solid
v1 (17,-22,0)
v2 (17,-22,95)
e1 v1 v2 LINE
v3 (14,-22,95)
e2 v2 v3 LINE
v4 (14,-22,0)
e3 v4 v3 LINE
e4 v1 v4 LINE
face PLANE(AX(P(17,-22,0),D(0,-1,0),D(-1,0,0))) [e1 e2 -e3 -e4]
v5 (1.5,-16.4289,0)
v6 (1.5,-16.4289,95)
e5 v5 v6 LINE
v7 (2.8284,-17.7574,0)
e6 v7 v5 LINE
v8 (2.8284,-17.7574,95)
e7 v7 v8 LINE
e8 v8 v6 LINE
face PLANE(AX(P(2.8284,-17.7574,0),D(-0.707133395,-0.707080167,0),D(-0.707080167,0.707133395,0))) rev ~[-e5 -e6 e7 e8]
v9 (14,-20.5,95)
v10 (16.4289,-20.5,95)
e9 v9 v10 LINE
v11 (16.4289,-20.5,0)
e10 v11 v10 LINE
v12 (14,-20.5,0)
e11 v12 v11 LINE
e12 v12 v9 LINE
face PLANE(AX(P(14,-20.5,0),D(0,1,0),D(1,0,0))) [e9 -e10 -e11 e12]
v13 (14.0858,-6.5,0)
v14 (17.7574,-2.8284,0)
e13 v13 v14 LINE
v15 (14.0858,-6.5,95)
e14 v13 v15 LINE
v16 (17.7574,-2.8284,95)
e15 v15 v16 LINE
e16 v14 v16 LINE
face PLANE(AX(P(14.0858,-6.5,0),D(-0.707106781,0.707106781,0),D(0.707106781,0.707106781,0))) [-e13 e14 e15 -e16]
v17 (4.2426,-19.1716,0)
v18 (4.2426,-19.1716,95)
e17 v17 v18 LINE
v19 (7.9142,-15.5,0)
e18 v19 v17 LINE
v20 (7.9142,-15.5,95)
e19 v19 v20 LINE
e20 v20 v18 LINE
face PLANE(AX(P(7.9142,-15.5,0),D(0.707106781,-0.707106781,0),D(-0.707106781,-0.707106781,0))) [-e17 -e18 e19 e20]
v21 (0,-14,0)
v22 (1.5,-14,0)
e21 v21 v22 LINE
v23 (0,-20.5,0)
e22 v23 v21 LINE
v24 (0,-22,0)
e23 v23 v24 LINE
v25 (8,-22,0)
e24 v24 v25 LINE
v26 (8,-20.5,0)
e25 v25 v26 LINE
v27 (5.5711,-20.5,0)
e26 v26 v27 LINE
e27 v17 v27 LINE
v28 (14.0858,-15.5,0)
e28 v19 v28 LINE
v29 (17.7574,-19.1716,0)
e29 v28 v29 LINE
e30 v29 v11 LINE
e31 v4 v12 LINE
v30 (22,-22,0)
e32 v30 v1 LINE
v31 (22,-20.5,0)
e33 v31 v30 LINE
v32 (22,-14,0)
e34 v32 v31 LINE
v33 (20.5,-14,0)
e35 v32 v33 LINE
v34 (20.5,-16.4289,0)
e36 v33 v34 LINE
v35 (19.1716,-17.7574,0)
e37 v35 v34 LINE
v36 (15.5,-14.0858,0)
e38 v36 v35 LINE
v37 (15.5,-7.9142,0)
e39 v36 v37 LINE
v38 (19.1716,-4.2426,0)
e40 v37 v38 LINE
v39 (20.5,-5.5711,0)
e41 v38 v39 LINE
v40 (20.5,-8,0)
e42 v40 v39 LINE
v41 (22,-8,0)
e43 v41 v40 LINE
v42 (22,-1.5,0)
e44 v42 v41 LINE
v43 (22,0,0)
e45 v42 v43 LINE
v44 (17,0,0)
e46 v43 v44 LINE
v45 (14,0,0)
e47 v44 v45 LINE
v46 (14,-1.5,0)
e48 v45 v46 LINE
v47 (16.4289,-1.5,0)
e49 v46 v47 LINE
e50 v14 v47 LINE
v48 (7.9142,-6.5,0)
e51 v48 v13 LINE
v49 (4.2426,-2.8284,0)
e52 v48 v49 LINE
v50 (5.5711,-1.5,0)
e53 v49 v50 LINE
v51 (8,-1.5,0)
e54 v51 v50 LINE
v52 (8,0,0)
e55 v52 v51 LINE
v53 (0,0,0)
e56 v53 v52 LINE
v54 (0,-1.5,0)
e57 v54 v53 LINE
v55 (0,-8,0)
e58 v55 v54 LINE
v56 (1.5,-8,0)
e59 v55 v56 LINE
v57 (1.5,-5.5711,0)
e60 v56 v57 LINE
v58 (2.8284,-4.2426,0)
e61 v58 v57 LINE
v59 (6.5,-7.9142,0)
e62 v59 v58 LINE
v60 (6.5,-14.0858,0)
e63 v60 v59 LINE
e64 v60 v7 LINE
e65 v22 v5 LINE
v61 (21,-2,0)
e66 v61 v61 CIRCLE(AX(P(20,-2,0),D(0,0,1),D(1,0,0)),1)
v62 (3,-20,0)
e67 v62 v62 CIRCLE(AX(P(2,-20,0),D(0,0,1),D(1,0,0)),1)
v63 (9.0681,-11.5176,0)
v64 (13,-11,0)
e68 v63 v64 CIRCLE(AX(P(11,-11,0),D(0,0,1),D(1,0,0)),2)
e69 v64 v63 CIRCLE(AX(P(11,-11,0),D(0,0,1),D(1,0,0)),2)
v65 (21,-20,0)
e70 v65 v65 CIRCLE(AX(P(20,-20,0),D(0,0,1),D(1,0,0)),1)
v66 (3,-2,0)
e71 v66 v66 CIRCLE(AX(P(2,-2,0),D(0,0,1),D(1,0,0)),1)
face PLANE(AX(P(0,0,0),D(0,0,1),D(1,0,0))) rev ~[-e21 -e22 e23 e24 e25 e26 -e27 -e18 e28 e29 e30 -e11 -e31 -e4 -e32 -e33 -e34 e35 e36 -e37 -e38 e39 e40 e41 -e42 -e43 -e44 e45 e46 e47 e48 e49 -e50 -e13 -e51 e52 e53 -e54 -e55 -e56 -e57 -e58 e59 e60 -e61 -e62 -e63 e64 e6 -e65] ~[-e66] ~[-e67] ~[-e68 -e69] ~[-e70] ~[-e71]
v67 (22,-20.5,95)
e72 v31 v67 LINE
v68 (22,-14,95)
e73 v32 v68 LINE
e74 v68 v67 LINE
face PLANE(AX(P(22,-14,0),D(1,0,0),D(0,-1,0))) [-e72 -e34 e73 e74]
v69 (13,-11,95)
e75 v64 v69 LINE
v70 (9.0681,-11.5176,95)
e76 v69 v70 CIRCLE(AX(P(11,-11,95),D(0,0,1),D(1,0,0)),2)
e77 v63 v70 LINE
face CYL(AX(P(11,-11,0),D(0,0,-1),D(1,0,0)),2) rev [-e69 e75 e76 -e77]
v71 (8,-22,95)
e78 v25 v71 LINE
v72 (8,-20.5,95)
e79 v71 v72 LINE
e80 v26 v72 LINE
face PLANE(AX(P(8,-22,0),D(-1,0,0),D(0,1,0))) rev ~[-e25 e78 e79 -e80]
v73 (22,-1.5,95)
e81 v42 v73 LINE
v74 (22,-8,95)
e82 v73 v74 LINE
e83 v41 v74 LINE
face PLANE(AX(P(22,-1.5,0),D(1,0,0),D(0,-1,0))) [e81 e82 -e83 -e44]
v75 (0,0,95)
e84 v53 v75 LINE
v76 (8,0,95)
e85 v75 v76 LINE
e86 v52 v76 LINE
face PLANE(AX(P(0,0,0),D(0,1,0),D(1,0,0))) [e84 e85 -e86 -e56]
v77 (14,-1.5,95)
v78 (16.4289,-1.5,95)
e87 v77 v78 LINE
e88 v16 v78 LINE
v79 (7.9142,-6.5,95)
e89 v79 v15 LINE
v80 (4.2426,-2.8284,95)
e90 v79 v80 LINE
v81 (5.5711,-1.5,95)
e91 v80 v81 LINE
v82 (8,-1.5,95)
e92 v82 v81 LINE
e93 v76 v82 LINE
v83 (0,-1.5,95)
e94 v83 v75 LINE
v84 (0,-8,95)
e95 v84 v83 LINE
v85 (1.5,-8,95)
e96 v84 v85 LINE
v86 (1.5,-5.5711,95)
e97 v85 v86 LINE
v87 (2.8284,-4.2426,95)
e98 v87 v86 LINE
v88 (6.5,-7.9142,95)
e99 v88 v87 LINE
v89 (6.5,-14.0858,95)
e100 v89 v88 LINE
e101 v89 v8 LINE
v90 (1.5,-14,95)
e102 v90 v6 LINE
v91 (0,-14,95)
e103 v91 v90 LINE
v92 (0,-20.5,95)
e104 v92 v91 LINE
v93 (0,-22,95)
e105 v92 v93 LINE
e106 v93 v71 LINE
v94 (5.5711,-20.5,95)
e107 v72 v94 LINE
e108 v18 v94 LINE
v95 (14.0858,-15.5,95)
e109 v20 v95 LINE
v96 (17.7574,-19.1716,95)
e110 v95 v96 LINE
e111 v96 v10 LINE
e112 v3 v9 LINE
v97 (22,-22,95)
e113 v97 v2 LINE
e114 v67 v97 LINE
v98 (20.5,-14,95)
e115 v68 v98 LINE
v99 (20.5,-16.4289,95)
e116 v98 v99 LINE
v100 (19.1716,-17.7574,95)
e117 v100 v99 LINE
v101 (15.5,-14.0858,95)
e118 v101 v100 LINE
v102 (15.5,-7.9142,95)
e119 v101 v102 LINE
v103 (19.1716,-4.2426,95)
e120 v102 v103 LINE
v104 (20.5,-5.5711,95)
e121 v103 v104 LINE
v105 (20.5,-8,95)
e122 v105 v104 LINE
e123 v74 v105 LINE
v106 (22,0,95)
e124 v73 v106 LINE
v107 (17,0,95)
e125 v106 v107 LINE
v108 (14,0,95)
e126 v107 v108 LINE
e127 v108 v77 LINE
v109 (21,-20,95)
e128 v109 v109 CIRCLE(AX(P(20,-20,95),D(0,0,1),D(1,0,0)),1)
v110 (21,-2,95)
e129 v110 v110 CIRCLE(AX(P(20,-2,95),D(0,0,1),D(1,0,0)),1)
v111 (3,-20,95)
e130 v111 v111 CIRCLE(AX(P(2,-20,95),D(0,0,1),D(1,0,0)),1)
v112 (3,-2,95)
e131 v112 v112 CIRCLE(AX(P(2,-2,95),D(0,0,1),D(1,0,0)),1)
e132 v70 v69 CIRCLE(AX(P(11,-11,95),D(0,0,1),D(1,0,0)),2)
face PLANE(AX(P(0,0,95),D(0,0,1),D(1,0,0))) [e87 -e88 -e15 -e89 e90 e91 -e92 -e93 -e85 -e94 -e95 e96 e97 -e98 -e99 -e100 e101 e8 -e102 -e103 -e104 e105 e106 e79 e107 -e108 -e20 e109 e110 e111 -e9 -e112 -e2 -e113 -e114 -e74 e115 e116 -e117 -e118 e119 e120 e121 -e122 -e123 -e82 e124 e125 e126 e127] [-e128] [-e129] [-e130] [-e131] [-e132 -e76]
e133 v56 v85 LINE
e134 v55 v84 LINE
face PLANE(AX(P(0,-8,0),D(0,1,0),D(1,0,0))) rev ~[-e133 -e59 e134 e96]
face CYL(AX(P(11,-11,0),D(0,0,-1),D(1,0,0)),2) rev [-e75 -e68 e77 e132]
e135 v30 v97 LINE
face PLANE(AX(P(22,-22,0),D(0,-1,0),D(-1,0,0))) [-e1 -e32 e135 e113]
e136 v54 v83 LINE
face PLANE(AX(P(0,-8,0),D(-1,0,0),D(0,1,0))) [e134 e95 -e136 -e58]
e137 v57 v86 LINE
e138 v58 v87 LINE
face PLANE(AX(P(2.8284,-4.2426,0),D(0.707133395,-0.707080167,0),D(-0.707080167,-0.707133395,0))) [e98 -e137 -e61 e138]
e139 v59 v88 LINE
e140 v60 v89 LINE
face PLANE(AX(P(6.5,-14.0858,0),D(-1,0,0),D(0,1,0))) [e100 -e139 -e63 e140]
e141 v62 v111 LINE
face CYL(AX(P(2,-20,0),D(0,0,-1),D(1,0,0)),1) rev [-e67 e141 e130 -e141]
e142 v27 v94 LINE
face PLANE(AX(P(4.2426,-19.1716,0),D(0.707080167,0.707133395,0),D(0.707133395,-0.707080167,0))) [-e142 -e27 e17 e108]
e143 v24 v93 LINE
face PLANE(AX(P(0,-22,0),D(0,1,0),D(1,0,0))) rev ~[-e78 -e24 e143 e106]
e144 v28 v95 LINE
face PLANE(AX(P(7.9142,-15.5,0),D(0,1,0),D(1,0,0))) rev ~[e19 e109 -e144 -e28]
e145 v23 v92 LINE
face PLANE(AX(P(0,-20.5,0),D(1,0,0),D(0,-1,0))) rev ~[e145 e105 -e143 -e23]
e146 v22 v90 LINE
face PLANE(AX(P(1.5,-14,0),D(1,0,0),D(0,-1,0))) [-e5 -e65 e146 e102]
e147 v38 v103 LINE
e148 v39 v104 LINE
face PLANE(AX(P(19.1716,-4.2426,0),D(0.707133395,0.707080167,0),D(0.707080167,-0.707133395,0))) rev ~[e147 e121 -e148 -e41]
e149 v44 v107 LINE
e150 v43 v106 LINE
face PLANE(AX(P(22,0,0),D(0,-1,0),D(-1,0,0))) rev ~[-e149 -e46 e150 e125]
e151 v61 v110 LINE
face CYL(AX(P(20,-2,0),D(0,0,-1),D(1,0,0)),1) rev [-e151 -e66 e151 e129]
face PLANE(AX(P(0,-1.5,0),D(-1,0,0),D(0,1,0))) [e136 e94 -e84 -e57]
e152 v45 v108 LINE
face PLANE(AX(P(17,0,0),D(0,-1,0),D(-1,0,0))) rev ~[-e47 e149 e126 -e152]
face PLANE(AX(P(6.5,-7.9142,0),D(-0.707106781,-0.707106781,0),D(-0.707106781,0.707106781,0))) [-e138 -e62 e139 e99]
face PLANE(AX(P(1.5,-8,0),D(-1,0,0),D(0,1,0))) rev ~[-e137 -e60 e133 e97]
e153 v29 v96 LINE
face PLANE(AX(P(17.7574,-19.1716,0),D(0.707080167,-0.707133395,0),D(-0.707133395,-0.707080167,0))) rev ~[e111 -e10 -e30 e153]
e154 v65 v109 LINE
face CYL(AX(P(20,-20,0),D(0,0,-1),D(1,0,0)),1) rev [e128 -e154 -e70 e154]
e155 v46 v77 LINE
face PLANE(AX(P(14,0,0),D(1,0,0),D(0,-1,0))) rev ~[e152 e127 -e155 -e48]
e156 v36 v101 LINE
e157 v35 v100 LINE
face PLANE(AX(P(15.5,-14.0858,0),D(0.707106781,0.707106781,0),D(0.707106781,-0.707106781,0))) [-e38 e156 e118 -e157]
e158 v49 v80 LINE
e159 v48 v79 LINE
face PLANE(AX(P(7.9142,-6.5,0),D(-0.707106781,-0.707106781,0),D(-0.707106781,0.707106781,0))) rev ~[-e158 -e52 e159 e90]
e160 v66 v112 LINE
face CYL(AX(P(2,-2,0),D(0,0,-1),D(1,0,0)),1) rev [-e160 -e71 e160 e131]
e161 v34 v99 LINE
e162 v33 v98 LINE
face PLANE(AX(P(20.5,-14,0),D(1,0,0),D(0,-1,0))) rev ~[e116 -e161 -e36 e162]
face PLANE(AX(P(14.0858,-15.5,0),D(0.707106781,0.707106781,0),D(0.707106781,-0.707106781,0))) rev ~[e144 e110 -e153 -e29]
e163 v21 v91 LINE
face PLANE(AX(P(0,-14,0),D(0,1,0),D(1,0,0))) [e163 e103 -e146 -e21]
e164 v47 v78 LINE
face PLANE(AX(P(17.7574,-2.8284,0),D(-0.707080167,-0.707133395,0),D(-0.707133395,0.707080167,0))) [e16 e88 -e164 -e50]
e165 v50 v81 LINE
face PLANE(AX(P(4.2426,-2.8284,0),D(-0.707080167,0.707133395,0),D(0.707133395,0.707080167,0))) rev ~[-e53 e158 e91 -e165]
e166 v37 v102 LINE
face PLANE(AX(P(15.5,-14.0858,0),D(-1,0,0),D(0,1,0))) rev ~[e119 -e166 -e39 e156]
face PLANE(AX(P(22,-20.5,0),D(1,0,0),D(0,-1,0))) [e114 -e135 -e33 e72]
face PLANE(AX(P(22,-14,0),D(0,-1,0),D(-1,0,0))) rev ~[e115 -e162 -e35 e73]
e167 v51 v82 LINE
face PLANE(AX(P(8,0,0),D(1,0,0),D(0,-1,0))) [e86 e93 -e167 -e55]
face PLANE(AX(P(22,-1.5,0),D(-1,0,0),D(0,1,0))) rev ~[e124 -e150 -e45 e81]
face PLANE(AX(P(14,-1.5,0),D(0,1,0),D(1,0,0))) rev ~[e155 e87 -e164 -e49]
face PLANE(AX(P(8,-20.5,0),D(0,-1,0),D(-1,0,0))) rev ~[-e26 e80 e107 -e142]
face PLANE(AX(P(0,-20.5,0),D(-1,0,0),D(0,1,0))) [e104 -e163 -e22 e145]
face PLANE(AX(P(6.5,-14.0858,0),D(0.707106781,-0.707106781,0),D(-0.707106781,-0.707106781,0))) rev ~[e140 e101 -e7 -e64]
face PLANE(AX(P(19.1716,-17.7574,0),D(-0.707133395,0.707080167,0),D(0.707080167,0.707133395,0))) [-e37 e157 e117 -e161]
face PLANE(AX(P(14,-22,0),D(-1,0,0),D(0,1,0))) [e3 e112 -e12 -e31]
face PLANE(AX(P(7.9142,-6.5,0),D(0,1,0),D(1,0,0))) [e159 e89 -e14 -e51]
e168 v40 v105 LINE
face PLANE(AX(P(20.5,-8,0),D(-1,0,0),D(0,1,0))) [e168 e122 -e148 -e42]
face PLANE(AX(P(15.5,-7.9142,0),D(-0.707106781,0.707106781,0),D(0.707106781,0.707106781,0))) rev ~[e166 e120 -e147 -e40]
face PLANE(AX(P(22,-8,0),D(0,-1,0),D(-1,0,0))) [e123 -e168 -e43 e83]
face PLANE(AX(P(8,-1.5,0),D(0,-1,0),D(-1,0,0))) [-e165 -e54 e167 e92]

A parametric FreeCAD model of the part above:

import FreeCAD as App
import Part
import Sketcher
from FreeCAD import Vector
Q = App.Units.Quantity

doc = App.newDocument("Part")
body = doc.addObject("PartDesign::Body", "Body")

# Sketch on XY plane
sketch1 = body.newObject("Sketcher::SketchObject", "Sketch")
sketch1.AttachmentSupport = (doc.getObject("XY_Plane"), [""])
sketch1.MapMode = "FlatFace"
sketch1.addGeometry([
    Part.LineSegment(Vector(8, 0, 0), Vector(0, 0, 0)),  # 0
    Part.LineSegment(Vector(0, 0, 0), Vector(0, -8, 0)),  # 1
    Part.LineSegment(Vector(0, -8, 0), Vector(1.5, -8, 0)),  # 2
    Part.LineSegment(Vector(1.5, -8, 0), Vector(1.5, -5.6, 0)),  # 3
    Part.LineSegment(Vector(1.5, -5.6, 0), Vector(2.8, -4.2, 0)),  # 4
    Part.LineSegment(Vector(2.8, -4.2, 0), Vector(6.5, -7.9, 0)),  # 5
    Part.LineSegment(Vector(6.5, -7.9, 0), Vector(6.5, -14.1, 0)),  # 6
    Part.LineSegment(Vector(6.5, -14.1, 0), Vector(2.8, -17.8, 0)),  # 7
    Part.LineSegment(Vector(2.8, -17.8, 0), Vector(1.5, -16.4, 0)),  # 8
    Part.LineSegment(Vector(1.5, -16.4, 0), Vector(1.5, -14, 0)),  # 9
    Part.LineSegment(Vector(1.5, -14, 0), Vector(0, -14, 0)),  # 10
    Part.LineSegment(Vector(0, -14, 0), Vector(0, -22, 0)),  # 11
    Part.LineSegment(Vector(0, -22, 0), Vector(8, -22, 0)),  # 12
    Part.LineSegment(Vector(8, -22, 0), Vector(8, -20.5, 0)),  # 13
    Part.LineSegment(Vector(8, -20.5, 0), Vector(5.6, -20.5, 0)),  # 14
    Part.LineSegment(Vector(5.6, -20.5, 0), Vector(4.2, -19.2, 0)),  # 15
    Part.LineSegment(Vector(4.2, -19.2, 0), Vector(7.9, -15.5, 0)),  # 16
    Part.LineSegment(Vector(7.9, -15.5, 0), Vector(14.1, -15.5, 0)),  # 17
    Part.LineSegment(Vector(14.1, -15.5, 0), Vector(17.8, -19.2, 0)),  # 18
    Part.LineSegment(Vector(17.8, -19.2, 0), Vector(16.4, -20.5, 0)),  # 19
    Part.LineSegment(Vector(16.4, -20.5, 0), Vector(14, -20.5, 0)),  # 20
    Part.LineSegment(Vector(14, -20.5, 0), Vector(14, -22, 0)),  # 21
    Part.LineSegment(Vector(14, -22, 0), Vector(22, -22, 0)),  # 22
    Part.LineSegment(Vector(22, -22, 0), Vector(22, -14, 0)),  # 23
    Part.LineSegment(Vector(22, -14, 0), Vector(20.5, -14, 0)),  # 24
    Part.LineSegment(Vector(20.5, -14, 0), Vector(20.5, -16.4, 0)),  # 25
    Part.LineSegment(Vector(20.5, -16.4, 0), Vector(19.2, -17.8, 0)),  # 26
    Part.LineSegment(Vector(19.2, -17.8, 0), Vector(15.5, -14.1, 0)),  # 27
    Part.LineSegment(Vector(15.5, -14.1, 0), Vector(15.5, -7.9, 0)),  # 28
    Part.LineSegment(Vector(15.5, -7.9, 0), Vector(19.2, -4.2, 0)),  # 29
    Part.LineSegment(Vector(19.2, -4.2, 0), Vector(20.5, -5.6, 0)),  # 30
    Part.LineSegment(Vector(20.5, -5.6, 0), Vector(20.5, -8, 0)),  # 31
    Part.LineSegment(Vector(20.5, -8, 0), Vector(22, -8, 0)),  # 32
    Part.LineSegment(Vector(22, -8, 0), Vector(22, 0, 0)),  # 33
    Part.LineSegment(Vector(22, 0, 0), Vector(14, 0, 0)),  # 34
    Part.LineSegment(Vector(14, 0, 0), Vector(14, -1.5, 0)),  # 35
    Part.LineSegment(Vector(14, -1.5, 0), Vector(16.4, -1.5, 0)),  # 36
    Part.LineSegment(Vector(16.4, -1.5, 0), Vector(17.8, -2.8, 0)),  # 37
    Part.LineSegment(Vector(17.8, -2.8, 0), Vector(14.1, -6.5, 0)),  # 38
    Part.LineSegment(Vector(14.1, -6.5, 0), Vector(7.9, -6.5, 0)),  # 39
    Part.LineSegment(Vector(7.9, -6.5, 0), Vector(4.2, -2.8, 0)),  # 40
    Part.LineSegment(Vector(4.2, -2.8, 0), Vector(5.6, -1.5, 0)),  # 41
    Part.LineSegment(Vector(5.6, -1.5, 0), Vector(8, -1.5, 0)),  # 42
    Part.LineSegment(Vector(8, -1.5, 0), Vector(8, 0, 0)),  # 43
    Part.Circle(Vector(2, -20, 0), Vector(0, 0, 1), 1),  # 44
    Part.Circle(Vector(20, -20, 0), Vector(0, 0, 1), 1),  # 45
    Part.Circle(Vector(2, -2, 0), Vector(0, 0, 1), 1),  # 46
    Part.Circle(Vector(11, -11, 0), Vector(0, 0, 1), 2),  # 47
    Part.Circle(Vector(20, -2, 0), Vector(0, 0, 1), 1),  # 48
], False)
sketch1.addConstraint([
    Sketcher.Constraint("Coincident", 0, 2, 1, 1),
    Sketcher.Constraint("Coincident", 1, 2, 2, 1),
    Sketcher.Constraint("Coincident", 2, 2, 3, 1),
    Sketcher.Constraint("Coincident", 3, 2, 4, 1),
    Sketcher.Constraint("Coincident", 4, 2, 5, 1),
    Sketcher.Constraint("Coincident", 5, 2, 6, 1),
    Sketcher.Constraint("Coincident", 6, 2, 7, 1),
    Sketcher.Constraint("Coincident", 7, 2, 8, 1),
    Sketcher.Constraint("Coincident", 8, 2, 9, 1),
    Sketcher.Constraint("Coincident", 9, 2, 10, 1),
    Sketcher.Constraint("Coincident", 10, 2, 11, 1),
    Sketcher.Constraint("Coincident", 11, 2, 12, 1),
    Sketcher.Constraint("Coincident", 12, 2, 13, 1),
    Sketcher.Constraint("Coincident", 13, 2, 14, 1),
    Sketcher.Constraint("Coincident", 14, 2, 15, 1),
    Sketcher.Constraint("Coincident", 15, 2, 16, 1),
    Sketcher.Constraint("Coincident", 16, 2, 17, 1),
    Sketcher.Constraint("Coincident", 17, 2, 18, 1),
    Sketcher.Constraint("Coincident", 18, 2, 19, 1),
    Sketcher.Constraint("Coincident", 19, 2, 20, 1),
    Sketcher.Constraint("Coincident", 20, 2, 21, 1),
    Sketcher.Constraint("Coincident", 21, 2, 22, 1),
    Sketcher.Constraint("Coincident", 22, 2, 23, 1),
    Sketcher.Constraint("Coincident", 23, 2, 24, 1),
    Sketcher.Constraint("Coincident", 24, 2, 25, 1),
    Sketcher.Constraint("Coincident", 25, 2, 26, 1),
    Sketcher.Constraint("Coincident", 26, 2, 27, 1),
    Sketcher.Constraint("Coincident", 27, 2, 28, 1),
    Sketcher.Constraint("Coincident", 28, 2, 29, 1),
    Sketcher.Constraint("Coincident", 29, 2, 30, 1),
    Sketcher.Constraint("Coincident", 30, 2, 31, 1),
    Sketcher.Constraint("Coincident", 31, 2, 32, 1),
    Sketcher.Constraint("Coincident", 32, 2, 33, 1),
    Sketcher.Constraint("Coincident", 33, 2, 34, 1),
    Sketcher.Constraint("Coincident", 34, 2, 35, 1),
    Sketcher.Constraint("Coincident", 35, 2, 36, 1),
    Sketcher.Constraint("Coincident", 36, 2, 37, 1),
    Sketcher.Constraint("Coincident", 37, 2, 38, 1),
    Sketcher.Constraint("Coincident", 38, 2, 39, 1),
    Sketcher.Constraint("Coincident", 39, 2, 40, 1),
    Sketcher.Constraint("Coincident", 40, 2, 41, 1),
    Sketcher.Constraint("Coincident", 41, 2, 42, 1),
    Sketcher.Constraint("Coincident", 42, 2, 43, 1),
    Sketcher.Constraint("Coincident", 43, 2, 0, 1),
    Sketcher.Constraint("Horizontal", 0),
    Sketcher.Constraint("Vertical", 1),
    Sketcher.Constraint("Horizontal", 2),
    Sketcher.Constraint("Vertical", 3),
    Sketcher.Constraint("Vertical", 6),
    Sketcher.Constraint("Vertical", 9),
    Sketcher.Constraint("Horizontal", 10),
    Sketcher.Constraint("Vertical", 11),
    Sketcher.Constraint("Horizontal", 12),
    Sketcher.Constraint("Vertical", 13),
    Sketcher.Constraint("Horizontal", 14),
    Sketcher.Constraint("Horizontal", 17),
    Sketcher.Constraint("Horizontal", 20),
    Sketcher.Constraint("Vertical", 21),
    Sketcher.Constraint("Horizontal", 22),
    Sketcher.Constraint("Vertical", 23),
    Sketcher.Constraint("Horizontal", 24),
    Sketcher.Constraint("Vertical", 25),
    Sketcher.Constraint("Vertical", 28),
    Sketcher.Constraint("Vertical", 31),
    Sketcher.Constraint("Horizontal", 32),
    Sketcher.Constraint("Vertical", 33),
    Sketcher.Constraint("Horizontal", 34),
    Sketcher.Constraint("Vertical", 35),
    Sketcher.Constraint("Horizontal", 36),
    Sketcher.Constraint("Horizontal", 39),
    Sketcher.Constraint("Horizontal", 42),
    Sketcher.Constraint("Vertical", 43),
    Sketcher.Constraint("Coincident", 0, 2, -1, 1),
    Sketcher.Constraint("Equal", 44, 45),
    Sketcher.Constraint("Equal", 45, 46),
    Sketcher.Constraint("Equal", 46, 48),
    Sketcher.Constraint("PointOnObject", 10, 2, -2),
    Sketcher.Constraint("PointOnObject", 33, 2, -1),
    Sketcher.Constraint("Perpendicular", 4, 5),
    Sketcher.Constraint("Perpendicular", 5, 7),
    Sketcher.Constraint("Perpendicular", 7, 8),
    Sketcher.Constraint("Parallel", 8, 15),
    Sketcher.Constraint("Perpendicular", 15, 16),
    Sketcher.Constraint("Perpendicular", 16, 18),
    Sketcher.Constraint("Perpendicular", 18, 19),
    Sketcher.Constraint("Parallel", 19, 26),
    Sketcher.Constraint("Perpendicular", 26, 27),
    Sketcher.Constraint("Perpendicular", 27, 29),
    Sketcher.Constraint("Perpendicular", 29, 30),
    Sketcher.Constraint("Parallel", 30, 37),
    Sketcher.Constraint("Perpendicular", 37, 38),
    Sketcher.Constraint("Perpendicular", 38, 40),
    Sketcher.Constraint("Perpendicular", 40, 41),
    Sketcher.Constraint("Horizontal", 44, 3, 45, 3),
    Sketcher.Constraint("Horizontal", 46, 3, 48, 3),
    Sketcher.Constraint("Horizontal", 15, 2, 18, 2),
    Sketcher.Constraint("Horizontal", 14, 2, 19, 2),
    Sketcher.Constraint("Horizontal", 12, 2, 21, 2),
    Sketcher.Constraint("Horizontal", 10, 2, 23, 2),
    Sketcher.Constraint("Horizontal", 8, 2, 25, 2),
    Sketcher.Constraint("Horizontal", 7, 2, 26, 2),
    Sketcher.Constraint("Horizontal", 6, 2, 27, 2),
    Sketcher.Constraint("Horizontal", 5, 2, 28, 2),
    Sketcher.Constraint("Horizontal", 4, 2, 29, 2),
    Sketcher.Constraint("Horizontal", 3, 2, 30, 2),
    Sketcher.Constraint("Horizontal", 2, 2, 31, 2),
    Sketcher.Constraint("Horizontal", 37, 2, 40, 2),
    Sketcher.Constraint("Horizontal", 36, 2, 41, 2),
    Sketcher.Constraint("Vertical", 44, 3, 46, 3),
    Sketcher.Constraint("Vertical", 45, 3, 48, 3),
    Sketcher.Constraint("Vertical", 4, 2, 7, 2),
    Sketcher.Constraint("Vertical", 3, 2, 8, 2),
    Sketcher.Constraint("Vertical", 26, 2, 29, 2),
    Sketcher.Constraint("Vertical", 23, 2, 32, 2),
    Sketcher.Constraint("Vertical", 21, 2, 34, 2),
    Sketcher.Constraint("Vertical", 19, 2, 36, 2),
    Sketcher.Constraint("Vertical", 18, 2, 37, 2),
    Sketcher.Constraint("Vertical", 17, 2, 38, 2),
    Sketcher.Constraint("Vertical", 16, 2, 39, 2),
    Sketcher.Constraint("Vertical", 13, 2, 42, 2),
    Sketcher.Constraint("Equal", 14, 20),
    Sketcher.Constraint("Equal", 12, 22),
    Sketcher.Constraint("Equal", 10, 24),
    Sketcher.Constraint("Equal", 34, 1),
    Sketcher.Constraint("Equal", 42, 3),
    Sketcher.Constraint("Equal", 39, 6),
    Sketcher.Constraint("Equal", 3, 9),
    Sketcher.Constraint("Equal", 1, 11),
    Sketcher.Constraint("Equal", 32, 13),
    Sketcher.Constraint("Equal", 21, 35),
    Sketcher.Constraint("Equal", 8, 15),
    Sketcher.Constraint("Equal", 7, 16),
    Sketcher.Constraint("Diameter", 44, Q("2 mm")),
    Sketcher.Constraint("Diameter", 47, Q("4 mm")),
    Sketcher.Constraint("DistanceX", 0, 2, 0, 1, Q("8 mm")),
    Sketcher.Constraint("DistanceX", 2, 1, 2, 2, Q("1.5 mm")),
    Sketcher.Constraint("DistanceX", -1, 1, 44, 3, Q("2 mm")),
    Sketcher.Constraint("DistanceY", 46, 3, -1, 1, Q("2 mm")),
    Sketcher.Constraint("DistanceX", 44, 3, 47, 3, Q("9 mm")),
    Sketcher.Constraint("DistanceY", 44, 3, 47, 3, Q("9 mm")),
    Sketcher.Constraint("DistanceX", 47, 3, 45, 3, Q("9 mm")),
    Sketcher.Constraint("DistanceY", 47, 3, 46, 3, Q("9 mm")),
    Sketcher.Constraint("DistanceX", 2, 2, 5, 2, Q("5 mm")),
    Sketcher.Constraint("DistanceY", 11, 2, 44, 3, Q("2 mm")),
    Sketcher.Constraint("DistanceX", 14, 2, 14, 1, Q("2.429 mm")),
    Sketcher.Constraint("DistanceX", 17, 1, 17, 2, Q("6.1716 mm")),
])
pad1 = body.newObject("PartDesign::Pad", "Pad")
pad1.Profile = sketch1
pad1.Length = 95

doc.recompute()
